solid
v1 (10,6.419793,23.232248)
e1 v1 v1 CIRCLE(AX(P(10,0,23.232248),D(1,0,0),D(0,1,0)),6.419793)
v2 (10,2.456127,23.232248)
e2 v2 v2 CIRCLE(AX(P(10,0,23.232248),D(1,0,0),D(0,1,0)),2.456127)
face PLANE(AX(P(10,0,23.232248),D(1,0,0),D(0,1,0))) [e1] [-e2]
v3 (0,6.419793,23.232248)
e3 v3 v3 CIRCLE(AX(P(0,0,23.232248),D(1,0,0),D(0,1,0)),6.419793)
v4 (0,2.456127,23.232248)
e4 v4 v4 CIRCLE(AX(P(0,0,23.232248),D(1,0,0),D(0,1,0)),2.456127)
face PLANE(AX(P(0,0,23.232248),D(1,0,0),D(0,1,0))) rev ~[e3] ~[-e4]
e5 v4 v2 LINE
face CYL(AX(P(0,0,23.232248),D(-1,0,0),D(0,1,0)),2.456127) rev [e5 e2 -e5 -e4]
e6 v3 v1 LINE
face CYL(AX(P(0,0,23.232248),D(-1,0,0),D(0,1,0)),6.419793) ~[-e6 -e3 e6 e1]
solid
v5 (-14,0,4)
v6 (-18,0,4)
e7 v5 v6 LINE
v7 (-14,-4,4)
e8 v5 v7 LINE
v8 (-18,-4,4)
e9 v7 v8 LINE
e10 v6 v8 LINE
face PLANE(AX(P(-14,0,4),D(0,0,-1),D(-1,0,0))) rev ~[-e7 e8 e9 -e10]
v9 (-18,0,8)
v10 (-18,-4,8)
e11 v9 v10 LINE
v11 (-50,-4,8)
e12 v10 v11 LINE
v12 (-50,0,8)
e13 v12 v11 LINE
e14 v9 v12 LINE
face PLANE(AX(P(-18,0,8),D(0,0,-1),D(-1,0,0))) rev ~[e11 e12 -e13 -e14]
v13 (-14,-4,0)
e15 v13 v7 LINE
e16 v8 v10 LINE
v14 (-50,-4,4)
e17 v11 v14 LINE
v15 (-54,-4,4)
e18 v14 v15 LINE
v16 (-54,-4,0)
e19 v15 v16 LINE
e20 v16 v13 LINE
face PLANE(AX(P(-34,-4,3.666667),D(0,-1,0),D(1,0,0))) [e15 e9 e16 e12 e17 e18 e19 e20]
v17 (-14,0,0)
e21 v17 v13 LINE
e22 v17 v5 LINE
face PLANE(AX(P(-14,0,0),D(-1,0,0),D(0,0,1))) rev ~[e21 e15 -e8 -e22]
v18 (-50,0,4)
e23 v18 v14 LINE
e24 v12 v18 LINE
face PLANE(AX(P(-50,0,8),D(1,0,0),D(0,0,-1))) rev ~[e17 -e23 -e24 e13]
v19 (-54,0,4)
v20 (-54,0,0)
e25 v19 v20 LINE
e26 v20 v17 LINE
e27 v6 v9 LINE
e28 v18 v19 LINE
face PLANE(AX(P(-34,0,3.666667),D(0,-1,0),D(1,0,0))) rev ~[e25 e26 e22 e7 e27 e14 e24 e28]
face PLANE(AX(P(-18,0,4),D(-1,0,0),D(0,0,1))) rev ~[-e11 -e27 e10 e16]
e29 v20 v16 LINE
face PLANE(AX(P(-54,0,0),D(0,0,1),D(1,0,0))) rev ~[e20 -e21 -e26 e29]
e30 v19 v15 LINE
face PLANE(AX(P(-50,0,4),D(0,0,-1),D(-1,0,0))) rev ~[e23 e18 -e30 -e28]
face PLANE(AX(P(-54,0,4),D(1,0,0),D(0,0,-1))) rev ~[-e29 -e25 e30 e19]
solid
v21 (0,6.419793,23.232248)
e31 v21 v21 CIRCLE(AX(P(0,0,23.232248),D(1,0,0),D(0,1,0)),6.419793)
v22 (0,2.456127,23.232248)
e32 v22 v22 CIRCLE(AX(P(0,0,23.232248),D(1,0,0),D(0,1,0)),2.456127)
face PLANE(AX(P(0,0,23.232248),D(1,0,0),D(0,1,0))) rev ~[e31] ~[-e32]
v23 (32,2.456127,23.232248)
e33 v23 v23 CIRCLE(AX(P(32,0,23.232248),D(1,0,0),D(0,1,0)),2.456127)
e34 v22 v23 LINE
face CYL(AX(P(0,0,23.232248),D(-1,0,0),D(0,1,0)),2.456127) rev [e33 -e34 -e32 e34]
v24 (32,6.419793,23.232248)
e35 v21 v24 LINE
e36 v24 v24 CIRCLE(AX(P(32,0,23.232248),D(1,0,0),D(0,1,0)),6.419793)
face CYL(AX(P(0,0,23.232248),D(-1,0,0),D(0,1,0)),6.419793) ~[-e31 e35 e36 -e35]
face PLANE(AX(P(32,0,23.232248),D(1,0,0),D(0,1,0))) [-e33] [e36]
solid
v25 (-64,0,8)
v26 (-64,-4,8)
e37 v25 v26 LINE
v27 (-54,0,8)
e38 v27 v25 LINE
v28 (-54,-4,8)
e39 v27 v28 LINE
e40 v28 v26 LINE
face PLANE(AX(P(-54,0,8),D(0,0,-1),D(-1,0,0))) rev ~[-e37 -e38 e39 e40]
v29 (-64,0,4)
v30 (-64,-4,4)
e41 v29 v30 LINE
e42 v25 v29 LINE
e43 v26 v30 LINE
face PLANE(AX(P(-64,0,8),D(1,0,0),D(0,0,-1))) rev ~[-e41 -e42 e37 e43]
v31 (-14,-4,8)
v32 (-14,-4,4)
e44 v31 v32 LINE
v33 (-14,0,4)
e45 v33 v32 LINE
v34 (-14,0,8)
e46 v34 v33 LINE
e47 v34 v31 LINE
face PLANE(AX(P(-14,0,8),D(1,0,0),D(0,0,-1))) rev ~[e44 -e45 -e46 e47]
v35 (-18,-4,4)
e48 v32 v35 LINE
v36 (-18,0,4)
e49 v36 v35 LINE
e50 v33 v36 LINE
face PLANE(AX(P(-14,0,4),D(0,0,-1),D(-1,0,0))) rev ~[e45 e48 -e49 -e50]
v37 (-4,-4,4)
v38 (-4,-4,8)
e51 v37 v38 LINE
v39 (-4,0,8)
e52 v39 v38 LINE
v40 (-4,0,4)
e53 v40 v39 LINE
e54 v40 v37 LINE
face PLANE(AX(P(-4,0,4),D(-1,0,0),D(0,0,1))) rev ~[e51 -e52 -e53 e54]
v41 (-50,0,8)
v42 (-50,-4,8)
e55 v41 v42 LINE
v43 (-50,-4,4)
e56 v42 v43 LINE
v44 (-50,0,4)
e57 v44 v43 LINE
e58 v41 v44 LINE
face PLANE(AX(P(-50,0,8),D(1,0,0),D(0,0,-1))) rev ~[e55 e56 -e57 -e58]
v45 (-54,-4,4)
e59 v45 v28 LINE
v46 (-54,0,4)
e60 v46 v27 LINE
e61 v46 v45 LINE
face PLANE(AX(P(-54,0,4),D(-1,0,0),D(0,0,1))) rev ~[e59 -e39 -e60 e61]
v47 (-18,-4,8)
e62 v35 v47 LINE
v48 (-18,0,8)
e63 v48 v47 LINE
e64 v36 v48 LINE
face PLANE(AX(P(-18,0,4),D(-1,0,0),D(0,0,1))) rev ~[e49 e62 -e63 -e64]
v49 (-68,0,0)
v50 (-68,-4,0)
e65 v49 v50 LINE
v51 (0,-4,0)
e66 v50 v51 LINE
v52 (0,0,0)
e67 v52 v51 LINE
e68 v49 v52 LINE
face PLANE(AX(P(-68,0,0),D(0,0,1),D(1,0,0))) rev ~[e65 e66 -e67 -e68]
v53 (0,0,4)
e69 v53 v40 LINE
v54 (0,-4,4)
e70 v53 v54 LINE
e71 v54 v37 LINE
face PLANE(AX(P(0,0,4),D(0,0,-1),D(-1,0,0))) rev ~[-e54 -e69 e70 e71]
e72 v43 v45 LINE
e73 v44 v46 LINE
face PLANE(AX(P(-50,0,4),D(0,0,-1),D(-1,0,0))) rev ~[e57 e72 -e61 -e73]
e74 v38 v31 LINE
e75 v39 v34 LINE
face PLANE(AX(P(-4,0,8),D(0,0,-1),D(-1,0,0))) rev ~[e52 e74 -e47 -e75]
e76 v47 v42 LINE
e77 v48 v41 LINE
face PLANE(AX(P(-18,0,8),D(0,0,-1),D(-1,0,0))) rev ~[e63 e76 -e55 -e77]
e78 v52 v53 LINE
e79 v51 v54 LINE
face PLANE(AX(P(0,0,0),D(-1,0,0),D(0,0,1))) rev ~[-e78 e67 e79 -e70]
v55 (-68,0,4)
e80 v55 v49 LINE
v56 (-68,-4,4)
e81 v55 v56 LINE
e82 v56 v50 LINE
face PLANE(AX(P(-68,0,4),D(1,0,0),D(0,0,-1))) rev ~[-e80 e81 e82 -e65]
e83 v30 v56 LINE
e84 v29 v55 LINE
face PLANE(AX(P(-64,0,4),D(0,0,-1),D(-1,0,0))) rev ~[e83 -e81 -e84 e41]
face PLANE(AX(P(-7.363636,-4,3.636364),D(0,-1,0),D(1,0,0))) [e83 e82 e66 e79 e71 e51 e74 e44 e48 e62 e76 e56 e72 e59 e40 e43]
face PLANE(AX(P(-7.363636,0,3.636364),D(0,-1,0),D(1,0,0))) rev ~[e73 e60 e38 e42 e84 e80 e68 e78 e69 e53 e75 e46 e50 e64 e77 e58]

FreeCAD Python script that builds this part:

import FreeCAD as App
import Part
import Sketcher


def add_polygon(sketch, points):
    """Adds a closed chain of lines whose ends are joined by coincident constraints."""
    first, n = sketch.GeometryCount, len(points)
    for a, b in zip(points, points[1:] + points[:1]):
        sketch.addGeometry(Part.LineSegment(App.Vector(*a, 0), App.Vector(*b, 0)), False)
    for i in range(n):
        sketch.addConstraint(Sketcher.Constraint("Coincident", first + i, 2, first + (i + 1) % n, 1))

doc = App.newDocument("Part")
params = doc.addObject("Spreadsheet::Sheet", "Params")
for row, (alias, value) in enumerate([
    ("sketch1_width", "4 mm"),
    ("sketch1_width2", "10 mm"),
    ("sketch1_width3", "32 mm"),
    ("pad1_length", "4 mm"),
    ("sketch2_width", "40 mm"),
    ("sketch2_width2", "4 mm"),
    ("pad2_length", "4 mm"),
    ("pad3_length", "32 mm"),
    ("pad4_length", "10 mm"),
], start=1):
    params.set(f"A{row}", alias)
    params.set(f"B{row}", "=" + value)
    params.setAlias(f"B{row}", alias)

body = doc.addObject("PartDesign::Body", "Body")

# Sketch on XZ plane
sketch1 = doc.addObject("Sketcher::SketchObject", "Sketch")
body.addObject(sketch1)
sketch1.AttachmentSupport = (doc.XZ_Plane, [""])
sketch1.MapMode = "FlatFace"
add_polygon(sketch1, [(0, 0), (0, 4), (-4, 4), (-4, 8), (-14, 8), (-14, 4), (-18, 4), (-18, 8), (-50, 8), (-50, 4), (-54, 4), (-54, 8), (-64, 8), (-64, 4), (-68, 4), (-68, 0)])  # lines 0-15
sketch1.addConstraint([
    Sketcher.Constraint("Vertical", 0),
    Sketcher.Constraint("Horizontal", 1),
    Sketcher.Constraint("Vertical", 2),
    Sketcher.Constraint("Horizontal", 3),
    Sketcher.Constraint("Vertical", 4),
    Sketcher.Constraint("Horizontal", 5),
    Sketcher.Constraint("Vertical", 6),
    Sketcher.Constraint("Horizontal", 7),
    Sketcher.Constraint("Vertical", 8),
    Sketcher.Constraint("Horizontal", 9),
    Sketcher.Constraint("Vertical", 10),
    Sketcher.Constraint("Horizontal", 11),
    Sketcher.Constraint("Vertical", 12),
    Sketcher.Constraint("Horizontal", 13),
    Sketcher.Constraint("Vertical", 14),
    Sketcher.Constraint("Horizontal", 15),
    Sketcher.Constraint("Coincident", 15, 2, -1, 1),
    Sketcher.Constraint("Horizontal", 1, 2, 4, 2),
    Sketcher.Constraint("Horizontal", 3, 2, 6, 2),
    Sketcher.Constraint("Horizontal", 5, 2, 8, 2),
    Sketcher.Constraint("Horizontal", 7, 2, 10, 2),
    Sketcher.Constraint("Horizontal", 9, 2, 12, 2),
    Sketcher.Constraint("Equal", 1, 5),
    Sketcher.Constraint("Equal", 5, 9),
    Sketcher.Constraint("Equal", 3, 11),
    Sketcher.Constraint("Equal", 9, 13),
    Sketcher.Constraint("Equal", 13, 0),
    Sketcher.Constraint("Equal", 0, 2),
    Sketcher.Constraint("DistanceX", 1, 2, 1, 1, 4.0),
    Sketcher.Constraint("DistanceX", 3, 2, 3, 1, 10.0),
    Sketcher.Constraint("DistanceX", 7, 2, 7, 1, 32.0),
])
sketch1.setExpression("Constraints[44]", "Params.sketch1_width")
sketch1.setExpression("Constraints[45]", "Params.sketch1_width2")
sketch1.setExpression("Constraints[46]", "Params.sketch1_width3")
pad1 = doc.addObject("PartDesign::Pad", "Pad")
body.addObject(pad1)
pad1.Profile = sketch1
pad1.setExpression("Length", "Params.pad1_length")
body2 = doc.addObject("PartDesign::Body", "Body001")

# Sketch on XZ plane
sketch2 = doc.addObject("Sketcher::SketchObject", "Sketch001")
body2.addObject(sketch2)
sketch2.AttachmentSupport = (doc.getObject("XZ_Plane001"), [""])
sketch2.MapMode = "FlatFace"
add_polygon(sketch2, [(-54, 0), (-14, 0), (-14, 4), (-18, 4), (-18, 8), (-50, 8), (-50, 4), (-54, 4)])  # lines 0-7
sketch2.addConstraint([
    Sketcher.Constraint("Horizontal", 0),
    Sketcher.Constraint("Vertical", 1),
    Sketcher.Constraint("Horizontal", 2),
    Sketcher.Constraint("Vertical", 3),
    Sketcher.Constraint("Horizontal", 4),
    Sketcher.Constraint("Vertical", 5),
    Sketcher.Constraint("Horizontal", 6),
    Sketcher.Constraint("Vertical", 7),
    Sketcher.Constraint("PointOnObject", 0, 2, -1),
    Sketcher.Constraint("Horizontal", 2, 2, 5, 2),
    Sketcher.Constraint("Equal", 2, 6),
    Sketcher.Constraint("Equal", 6, 1),
    Sketcher.Constraint("Equal", 1, 3),
    Sketcher.Constraint("DistanceX", 0, 1, 0, 2, 40.0),
    Sketcher.Constraint("DistanceX", 2, 2, 2, 1, 4.0),
    Sketcher.Constraint("DistanceX", 0, 2, -1, 1, 14.0),
])
sketch2.setExpression("Constraints[21]", "Params.sketch2_width")
sketch2.setExpression("Constraints[22]", "Params.sketch2_width2")
pad2 = doc.addObject("PartDesign::Pad", "Pad001")
body2.addObject(pad2)
pad2.Profile = sketch2
pad2.setExpression("Length", "Params.pad2_length")
body3 = doc.addObject("PartDesign::Body", "Body002")

# Sketch on YZ plane
sketch3 = doc.addObject("Sketcher::SketchObject", "Sketch002")
body3.addObject(sketch3)
sketch3.AttachmentSupport = (doc.getObject("YZ_Plane002"), [""])
sketch3.MapMode = "FlatFace"
sketch3.addGeometry([
    Part.Circle(App.Vector(0, 23.2, 0), App.Vector(0, 0, 1), 6.4),
    Part.Circle(App.Vector(0, 23.2, 0), App.Vector(0, 0, 1), 2.5),
], False)
sketch3.addConstraint([
    Sketcher.Constraint("Coincident", 1, 3, 0, 3),
    Sketcher.Constraint("PointOnObject", 0, 3, -2),
    Sketcher.Constraint("Diameter", 0, 12.839586),
    Sketcher.Constraint("Diameter", 1, 4.912254),
    Sketcher.Constraint("DistanceY", -1, 1, 0, 3, 23.232248),
])
pad3 = doc.addObject("PartDesign::Pad", "Pad002")
body3.addObject(pad3)
pad3.Profile = sketch3
pad3.setExpression("Length", "Params.pad3_length")
body4 = doc.addObject("PartDesign::Body", "Body003")

# Sketch on YZ plane
sketch4 = doc.addObject("Sketcher::SketchObject", "Sketch003")
body4.addObject(sketch4)
sketch4.AttachmentSupport = (doc.getObject("YZ_Plane003"), [""])
sketch4.MapMode = "FlatFace"
sketch4.addGeometry([
    Part.Circle(App.Vector(0, 23.2, 0), App.Vector(0, 0, 1), 6.4),
    Part.Circle(App.Vector(0, 23.2, 0), App.Vector(0, 0, 1), 2.5),
], False)
sketch4.addConstraint([
    Sketcher.Constraint("Coincident", 1, 3, 0, 3),
    Sketcher.Constraint("PointOnObject", 0, 3, -2),
    Sketcher.Constraint("Diameter", 0, 12.839586),
    Sketcher.Constraint("Diameter", 1, 4.912254),
    Sketcher.Constraint("DistanceY", -1, 1, 0, 3, 23.232248),
])
pad4 = doc.addObject("PartDesign::Pad", "Pad003")
body4.addObject(pad4)
pad4.Profile = sketch4
pad4.setExpression("Length", "Params.pad4_length")

doc.recompute()
